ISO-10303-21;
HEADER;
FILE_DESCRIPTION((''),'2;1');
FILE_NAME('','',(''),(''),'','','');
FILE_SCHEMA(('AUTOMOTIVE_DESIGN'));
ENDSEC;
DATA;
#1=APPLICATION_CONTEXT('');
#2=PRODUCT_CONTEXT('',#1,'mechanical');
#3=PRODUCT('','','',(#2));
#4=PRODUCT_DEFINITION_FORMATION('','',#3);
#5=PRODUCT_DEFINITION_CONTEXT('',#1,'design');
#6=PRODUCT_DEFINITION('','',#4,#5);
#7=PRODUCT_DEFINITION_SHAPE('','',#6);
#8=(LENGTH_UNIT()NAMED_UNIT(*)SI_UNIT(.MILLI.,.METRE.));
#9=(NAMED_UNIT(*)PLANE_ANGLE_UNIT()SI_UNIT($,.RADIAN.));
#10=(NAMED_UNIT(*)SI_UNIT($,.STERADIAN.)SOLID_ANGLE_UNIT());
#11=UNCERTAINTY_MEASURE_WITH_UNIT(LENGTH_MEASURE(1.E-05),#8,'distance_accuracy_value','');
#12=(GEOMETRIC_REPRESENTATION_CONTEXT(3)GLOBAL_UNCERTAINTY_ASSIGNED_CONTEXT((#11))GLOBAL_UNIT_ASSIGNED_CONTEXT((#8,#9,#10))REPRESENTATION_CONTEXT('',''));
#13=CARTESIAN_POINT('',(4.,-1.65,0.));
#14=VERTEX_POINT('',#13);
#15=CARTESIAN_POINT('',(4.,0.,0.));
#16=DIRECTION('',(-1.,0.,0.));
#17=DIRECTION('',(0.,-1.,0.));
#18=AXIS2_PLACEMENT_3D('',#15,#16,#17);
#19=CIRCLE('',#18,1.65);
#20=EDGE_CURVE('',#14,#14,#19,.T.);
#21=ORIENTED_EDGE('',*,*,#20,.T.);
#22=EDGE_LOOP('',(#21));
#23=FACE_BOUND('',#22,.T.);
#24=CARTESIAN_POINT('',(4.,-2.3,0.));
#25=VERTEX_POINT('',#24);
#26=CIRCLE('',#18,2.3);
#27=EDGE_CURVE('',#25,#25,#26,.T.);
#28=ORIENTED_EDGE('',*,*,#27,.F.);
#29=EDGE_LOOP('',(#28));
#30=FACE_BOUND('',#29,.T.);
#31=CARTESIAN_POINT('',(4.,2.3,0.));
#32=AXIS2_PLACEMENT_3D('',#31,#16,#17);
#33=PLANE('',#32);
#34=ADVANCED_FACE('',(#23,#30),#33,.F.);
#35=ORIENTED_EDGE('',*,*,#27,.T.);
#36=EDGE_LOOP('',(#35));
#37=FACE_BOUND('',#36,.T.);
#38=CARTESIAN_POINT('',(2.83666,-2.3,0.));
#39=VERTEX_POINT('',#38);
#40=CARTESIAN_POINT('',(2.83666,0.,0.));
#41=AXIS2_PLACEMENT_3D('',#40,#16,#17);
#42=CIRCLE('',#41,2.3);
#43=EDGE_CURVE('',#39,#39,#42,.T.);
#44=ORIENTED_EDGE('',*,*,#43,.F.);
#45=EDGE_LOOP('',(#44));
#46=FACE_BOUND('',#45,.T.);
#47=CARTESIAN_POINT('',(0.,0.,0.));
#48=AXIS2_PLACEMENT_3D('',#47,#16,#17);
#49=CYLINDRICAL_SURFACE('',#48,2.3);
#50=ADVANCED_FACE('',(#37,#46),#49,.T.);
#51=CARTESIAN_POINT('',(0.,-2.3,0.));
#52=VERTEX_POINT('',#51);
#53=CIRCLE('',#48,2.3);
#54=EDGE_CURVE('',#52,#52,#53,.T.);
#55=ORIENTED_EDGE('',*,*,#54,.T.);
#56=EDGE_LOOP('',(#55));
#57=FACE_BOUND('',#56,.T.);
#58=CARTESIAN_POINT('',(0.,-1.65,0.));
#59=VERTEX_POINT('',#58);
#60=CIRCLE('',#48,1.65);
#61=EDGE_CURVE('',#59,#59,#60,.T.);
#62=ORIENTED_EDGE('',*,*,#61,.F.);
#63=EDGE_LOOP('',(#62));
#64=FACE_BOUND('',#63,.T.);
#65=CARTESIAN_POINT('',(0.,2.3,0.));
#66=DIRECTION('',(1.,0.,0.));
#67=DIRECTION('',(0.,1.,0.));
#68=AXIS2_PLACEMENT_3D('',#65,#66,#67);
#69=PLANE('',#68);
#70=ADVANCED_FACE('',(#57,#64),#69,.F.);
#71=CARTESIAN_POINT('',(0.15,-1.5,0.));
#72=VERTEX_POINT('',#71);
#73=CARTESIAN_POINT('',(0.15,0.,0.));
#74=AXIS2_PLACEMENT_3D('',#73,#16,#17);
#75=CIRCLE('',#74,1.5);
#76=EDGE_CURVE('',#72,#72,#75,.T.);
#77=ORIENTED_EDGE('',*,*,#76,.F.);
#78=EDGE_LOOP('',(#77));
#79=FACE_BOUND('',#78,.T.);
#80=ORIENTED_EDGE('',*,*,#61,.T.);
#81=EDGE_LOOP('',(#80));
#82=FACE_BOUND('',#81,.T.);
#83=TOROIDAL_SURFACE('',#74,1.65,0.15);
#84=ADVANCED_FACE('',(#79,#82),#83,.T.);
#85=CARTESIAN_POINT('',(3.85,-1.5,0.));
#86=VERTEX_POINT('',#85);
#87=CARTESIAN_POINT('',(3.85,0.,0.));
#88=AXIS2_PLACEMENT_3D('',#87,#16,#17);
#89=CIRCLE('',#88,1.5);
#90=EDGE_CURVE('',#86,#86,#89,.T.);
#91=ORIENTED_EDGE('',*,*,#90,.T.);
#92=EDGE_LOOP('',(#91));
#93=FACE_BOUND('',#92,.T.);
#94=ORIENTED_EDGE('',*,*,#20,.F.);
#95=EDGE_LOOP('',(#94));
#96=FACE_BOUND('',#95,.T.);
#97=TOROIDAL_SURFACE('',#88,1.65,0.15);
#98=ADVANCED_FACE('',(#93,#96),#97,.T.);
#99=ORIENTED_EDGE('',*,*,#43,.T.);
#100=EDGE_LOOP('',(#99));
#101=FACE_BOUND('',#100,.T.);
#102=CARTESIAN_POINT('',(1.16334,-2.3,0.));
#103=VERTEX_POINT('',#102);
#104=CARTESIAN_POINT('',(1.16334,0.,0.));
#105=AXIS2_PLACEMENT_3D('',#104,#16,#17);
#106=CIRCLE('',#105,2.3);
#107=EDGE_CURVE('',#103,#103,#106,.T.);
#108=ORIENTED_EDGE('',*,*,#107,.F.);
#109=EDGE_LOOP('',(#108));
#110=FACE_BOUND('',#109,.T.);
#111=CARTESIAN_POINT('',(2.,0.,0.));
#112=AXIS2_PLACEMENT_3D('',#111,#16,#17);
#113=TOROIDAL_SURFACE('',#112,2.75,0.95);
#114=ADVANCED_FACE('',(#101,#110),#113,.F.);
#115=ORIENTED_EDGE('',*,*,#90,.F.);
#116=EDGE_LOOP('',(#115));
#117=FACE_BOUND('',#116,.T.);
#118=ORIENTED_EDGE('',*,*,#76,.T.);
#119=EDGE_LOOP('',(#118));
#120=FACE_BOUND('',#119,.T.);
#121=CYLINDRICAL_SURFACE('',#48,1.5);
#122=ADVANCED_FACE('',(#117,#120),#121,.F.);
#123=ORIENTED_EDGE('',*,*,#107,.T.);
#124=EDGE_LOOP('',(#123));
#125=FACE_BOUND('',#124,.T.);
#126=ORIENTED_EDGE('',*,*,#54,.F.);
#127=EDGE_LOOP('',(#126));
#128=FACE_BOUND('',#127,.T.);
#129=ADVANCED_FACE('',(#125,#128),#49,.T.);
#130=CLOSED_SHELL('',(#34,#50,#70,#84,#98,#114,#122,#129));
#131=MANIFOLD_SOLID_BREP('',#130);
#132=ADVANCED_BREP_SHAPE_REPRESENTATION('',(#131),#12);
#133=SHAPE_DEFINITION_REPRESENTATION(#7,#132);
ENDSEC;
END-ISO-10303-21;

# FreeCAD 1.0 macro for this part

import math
import FreeCAD as App
import Part
import Sketcher

doc = App.newDocument("Part")
body = doc.addObject("PartDesign::Body", "Body")

sketch1 = body.newObject("Sketcher::SketchObject", "Sketch")
sketch1.AttachmentSupport = (doc.getObject("XY_Plane"), [""])
sketch1.MapMode = "FlatFace"
sketch1.addGeometry([
    Part.LineSegment(App.Vector(0.15, 1.5, 0), App.Vector(3.85, 1.5, 0)),
    Part.ArcOfCircle(Part.Circle(App.Vector(3.85, 1.65, 0), App.Vector(0, 0, 1), 0.15), math.radians(-90), math.radians(0)),
    Part.LineSegment(App.Vector(4, 1.65, 0), App.Vector(4, 2.3, 0)),
    Part.LineSegment(App.Vector(4, 2.3, 0), App.Vector(2.84, 2.3, 0)),
    Part.ArcOfCircle(Part.Circle(App.Vector(2, 2.75, 0), App.Vector(0, 0, 1), 0.95), math.radians(-152), math.radians(-28)),
    Part.LineSegment(App.Vector(1.16, 2.3, 0), App.Vector(0, 2.3, 0)),
    Part.LineSegment(App.Vector(0, 2.3, 0), App.Vector(0, 1.65, 0)),
    Part.ArcOfCircle(Part.Circle(App.Vector(0.15, 1.65, 0), App.Vector(0, 0, 1), 0.15), math.radians(-180), math.radians(-90)),
], False)
sketch1.addConstraint([
    Sketcher.Constraint("Tangent", 0, 2, 1, 1),
    Sketcher.Constraint("Tangent", 1, 2, 2, 1),
    Sketcher.Constraint("Coincident", 2, 2, 3, 1),
    Sketcher.Constraint("Coincident", 3, 2, 4, 2),
    Sketcher.Constraint("Coincident", 4, 1, 5, 1),
    Sketcher.Constraint("Coincident", 5, 2, 6, 1),
    Sketcher.Constraint("Tangent", 6, 2, 7, 1),
    Sketcher.Constraint("Tangent", 7, 2, 0, 1),
    Sketcher.Constraint("Horizontal", 0),
    Sketcher.Constraint("Vertical", 2),
    Sketcher.Constraint("Horizontal", 3),
    Sketcher.Constraint("Horizontal", 5),
    Sketcher.Constraint("Vertical", 6),
    Sketcher.Constraint("Equal", 1, 7),
    Sketcher.Constraint("PointOnObject", 5, 2, -2),
    Sketcher.Constraint("Horizontal", 3, 2, 4, 1),
    Sketcher.Constraint("Equal", 3, 5),
    Sketcher.Constraint("Radius", 1, 0.15),
    Sketcher.Constraint("Radius", 4, 0.95),
    Sketcher.Constraint("DistanceX", 0, 1, 0, 2, 3.7),
    Sketcher.Constraint("DistanceY", 2, 1, 2, 2, 0.65),
    Sketcher.Constraint("DistanceY", -1, 1, 0, 2, 1.5),
    Sketcher.Constraint("DistanceY", 1, 3, 4, 3, 1.1),
])
revolution = body.newObject("PartDesign::Revolution", "Revolution")
revolution.Profile = sketch1
revolution.ReferenceAxis = (sketch1, ["H_Axis"])
revolution.Angle = 360

doc.recompute()
